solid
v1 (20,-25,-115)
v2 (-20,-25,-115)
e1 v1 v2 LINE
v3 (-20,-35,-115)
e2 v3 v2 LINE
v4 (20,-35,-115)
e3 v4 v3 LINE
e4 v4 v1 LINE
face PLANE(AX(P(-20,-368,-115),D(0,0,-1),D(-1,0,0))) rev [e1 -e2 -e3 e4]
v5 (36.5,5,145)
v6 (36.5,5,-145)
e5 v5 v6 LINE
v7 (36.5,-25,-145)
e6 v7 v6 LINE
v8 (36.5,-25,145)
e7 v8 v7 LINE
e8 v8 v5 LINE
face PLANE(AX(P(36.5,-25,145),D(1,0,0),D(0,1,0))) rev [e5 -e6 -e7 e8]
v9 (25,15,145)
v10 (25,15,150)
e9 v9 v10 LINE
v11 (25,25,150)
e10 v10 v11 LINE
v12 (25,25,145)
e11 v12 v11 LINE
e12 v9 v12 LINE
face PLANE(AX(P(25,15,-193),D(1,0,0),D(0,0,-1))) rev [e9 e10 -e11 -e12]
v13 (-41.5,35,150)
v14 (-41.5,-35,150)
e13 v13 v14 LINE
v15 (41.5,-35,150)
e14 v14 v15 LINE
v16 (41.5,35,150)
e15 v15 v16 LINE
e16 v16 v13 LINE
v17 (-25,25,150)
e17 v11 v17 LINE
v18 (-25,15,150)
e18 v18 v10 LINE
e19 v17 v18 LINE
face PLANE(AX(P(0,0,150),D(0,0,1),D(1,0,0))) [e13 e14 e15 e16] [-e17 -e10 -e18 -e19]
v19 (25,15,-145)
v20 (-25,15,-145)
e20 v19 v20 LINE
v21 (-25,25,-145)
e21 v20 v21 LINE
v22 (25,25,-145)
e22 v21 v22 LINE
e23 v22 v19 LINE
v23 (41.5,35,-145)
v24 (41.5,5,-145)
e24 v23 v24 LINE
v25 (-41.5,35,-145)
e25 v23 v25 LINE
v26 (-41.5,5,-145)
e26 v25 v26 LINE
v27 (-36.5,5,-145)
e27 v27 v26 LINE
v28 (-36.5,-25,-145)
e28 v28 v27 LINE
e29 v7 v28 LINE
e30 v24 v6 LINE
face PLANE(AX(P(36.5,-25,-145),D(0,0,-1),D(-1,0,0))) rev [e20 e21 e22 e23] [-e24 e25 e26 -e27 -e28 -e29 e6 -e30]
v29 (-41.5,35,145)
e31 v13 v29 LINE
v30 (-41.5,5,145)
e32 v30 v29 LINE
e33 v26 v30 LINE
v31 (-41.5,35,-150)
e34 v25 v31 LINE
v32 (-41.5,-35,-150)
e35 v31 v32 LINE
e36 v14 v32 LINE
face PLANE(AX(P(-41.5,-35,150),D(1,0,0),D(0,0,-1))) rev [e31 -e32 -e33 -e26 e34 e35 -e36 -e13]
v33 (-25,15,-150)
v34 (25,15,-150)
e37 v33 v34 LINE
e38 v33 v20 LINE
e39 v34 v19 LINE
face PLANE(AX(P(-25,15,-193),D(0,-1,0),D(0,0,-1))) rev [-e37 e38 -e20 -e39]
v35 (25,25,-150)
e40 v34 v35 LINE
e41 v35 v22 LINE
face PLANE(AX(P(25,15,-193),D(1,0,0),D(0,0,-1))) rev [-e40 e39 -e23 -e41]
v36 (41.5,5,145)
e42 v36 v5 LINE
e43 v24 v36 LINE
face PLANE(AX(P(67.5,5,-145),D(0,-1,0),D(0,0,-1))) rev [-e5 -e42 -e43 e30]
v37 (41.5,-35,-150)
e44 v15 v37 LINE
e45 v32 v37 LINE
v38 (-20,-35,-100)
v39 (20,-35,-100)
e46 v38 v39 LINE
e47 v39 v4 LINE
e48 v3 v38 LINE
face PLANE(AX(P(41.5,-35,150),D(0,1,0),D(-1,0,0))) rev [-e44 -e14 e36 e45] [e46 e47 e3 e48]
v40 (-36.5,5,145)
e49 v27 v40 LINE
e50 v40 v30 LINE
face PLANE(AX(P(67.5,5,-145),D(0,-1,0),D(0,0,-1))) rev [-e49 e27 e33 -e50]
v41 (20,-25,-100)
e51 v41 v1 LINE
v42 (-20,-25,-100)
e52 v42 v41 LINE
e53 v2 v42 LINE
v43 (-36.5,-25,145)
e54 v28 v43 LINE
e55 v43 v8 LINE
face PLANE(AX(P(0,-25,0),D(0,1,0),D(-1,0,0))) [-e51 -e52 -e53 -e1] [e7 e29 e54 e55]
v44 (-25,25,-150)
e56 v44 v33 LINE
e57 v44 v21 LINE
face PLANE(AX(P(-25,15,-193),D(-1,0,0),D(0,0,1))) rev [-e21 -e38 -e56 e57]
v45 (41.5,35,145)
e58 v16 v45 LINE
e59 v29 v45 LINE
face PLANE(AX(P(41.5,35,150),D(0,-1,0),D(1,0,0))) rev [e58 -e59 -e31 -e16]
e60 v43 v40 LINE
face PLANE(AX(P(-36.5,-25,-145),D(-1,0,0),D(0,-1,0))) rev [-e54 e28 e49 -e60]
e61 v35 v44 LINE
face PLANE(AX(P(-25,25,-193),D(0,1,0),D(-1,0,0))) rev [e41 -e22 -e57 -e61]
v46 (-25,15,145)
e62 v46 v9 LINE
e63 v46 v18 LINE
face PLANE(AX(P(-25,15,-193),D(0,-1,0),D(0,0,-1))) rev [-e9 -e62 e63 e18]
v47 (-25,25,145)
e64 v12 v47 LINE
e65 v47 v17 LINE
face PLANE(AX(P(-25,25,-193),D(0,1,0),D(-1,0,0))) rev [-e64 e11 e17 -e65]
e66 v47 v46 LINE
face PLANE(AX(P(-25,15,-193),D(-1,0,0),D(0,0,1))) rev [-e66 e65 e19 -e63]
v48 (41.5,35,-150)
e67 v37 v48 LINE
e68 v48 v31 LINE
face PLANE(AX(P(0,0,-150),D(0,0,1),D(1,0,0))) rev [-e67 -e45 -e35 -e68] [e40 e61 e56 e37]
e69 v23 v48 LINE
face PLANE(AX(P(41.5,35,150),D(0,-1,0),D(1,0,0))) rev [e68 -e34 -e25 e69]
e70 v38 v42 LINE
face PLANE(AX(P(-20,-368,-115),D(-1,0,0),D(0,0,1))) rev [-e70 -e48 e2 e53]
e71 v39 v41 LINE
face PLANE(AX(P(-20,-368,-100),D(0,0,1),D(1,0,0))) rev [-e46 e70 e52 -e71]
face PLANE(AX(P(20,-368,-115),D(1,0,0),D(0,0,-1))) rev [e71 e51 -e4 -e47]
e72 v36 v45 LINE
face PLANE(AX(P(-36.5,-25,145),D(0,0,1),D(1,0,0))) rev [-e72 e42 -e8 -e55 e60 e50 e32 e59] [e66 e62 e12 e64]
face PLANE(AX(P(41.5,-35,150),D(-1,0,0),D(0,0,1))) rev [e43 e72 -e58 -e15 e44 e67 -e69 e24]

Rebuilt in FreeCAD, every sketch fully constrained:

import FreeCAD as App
import Part
import Sketcher

V = App.Vector


def add_polygon(sketch, points):
    """Adds a closed chain of lines whose ends are joined by coincident constraints."""
    first, n = sketch.GeometryCount, len(points)
    for a, b in zip(points, points[1:] + points[:1]):
        sketch.addGeometry(Part.LineSegment(App.Vector(*a, 0), App.Vector(*b, 0)), False)
    for i in range(n):
        sketch.addConstraint(Sketcher.Constraint("Coincident", first + i, 2, first + (i + 1) % n, 1))

doc = App.newDocument("Part")
body = doc.addObject("PartDesign::Body", "Body")

# Sketch on XY plane
sketch1 = doc.addObject("Sketcher::SketchObject", "Sketch")
body.addObject(sketch1)
sketch1.AttachmentSupport = (doc.XY_Plane, [""])
sketch1.MapMode = "FlatFace"
add_polygon(sketch1, [(-42, 35), (-42, -35), (42, -35), (42, 35)])  # lines 0-3
sketch1.addConstraint(Sketcher.Constraint("Vertical", 0))
sketch1.addConstraint(Sketcher.Constraint("Horizontal", 1))
sketch1.addConstraint(Sketcher.Constraint("Vertical", 2))
sketch1.addConstraint(Sketcher.Constraint("Horizontal", 3))
sketch1.addConstraint(Sketcher.Constraint("Symmetric", 0, 2, 2, 2, -1, 1))
sketch1.addConstraint(Sketcher.Constraint("DistanceX", 1, 1, 1, 2, 83.0))
sketch1.addConstraint(Sketcher.Constraint("DistanceY", 0, 2, 0, 1, 70.0))
pad1 = doc.addObject("PartDesign::Pad", "Pad")
body.addObject(pad1)
pad1.Profile = sketch1
pad1.Length = 300
pad1.Midplane = True

# Sketch on XZ plane
sketch2 = doc.addObject("Sketcher::SketchObject", "Sketch001")
body.addObject(sketch2)
sketch2.AttachmentSupport = (doc.XZ_Plane, [""])
sketch2.MapMode = "FlatFace"
sketch2.AttachmentOffset = App.Placement(V(0, 0, -35), App.Rotation())
add_polygon(sketch2, [(-36, -145), (-36, 145), (36, 145), (36, -145)])  # lines 0-3
sketch2.addConstraint(Sketcher.Constraint("Vertical", 0))
sketch2.addConstraint(Sketcher.Constraint("Horizontal", 1))
sketch2.addConstraint(Sketcher.Constraint("Vertical", 2))
sketch2.addConstraint(Sketcher.Constraint("Horizontal", 3))
sketch2.addConstraint(Sketcher.Constraint("Symmetric", 0, 2, 2, 2, -1, 1))
sketch2.addConstraint(Sketcher.Constraint("DistanceX", 1, 1, 1, 2, 73.0))
sketch2.addConstraint(Sketcher.Constraint("DistanceY", 0, 1, 0, 2, 290.0))
pocket1 = doc.addObject("PartDesign::Pocket", "Pocket")
body.addObject(pocket1)
pocket1.Profile = sketch2
pocket1.Length = 60
pocket1.Reversed = True

# Sketch on YZ plane
sketch3 = doc.addObject("Sketcher::SketchObject", "Sketch002")
body.addObject(sketch3)
sketch3.AttachmentSupport = (doc.YZ_Plane, [""])
sketch3.MapMode = "FlatFace"
sketch3.AttachmentOffset = App.Placement(V(0, 0, -41.5), App.Rotation())
add_polygon(sketch3, [(35, -145), (5, -145), (5, 145), (35, 145)])  # lines 0-3
sketch3.addConstraint(Sketcher.Constraint("Horizontal", 0))
sketch3.addConstraint(Sketcher.Constraint("Vertical", 1))
sketch3.addConstraint(Sketcher.Constraint("Horizontal", 2))
sketch3.addConstraint(Sketcher.Constraint("Vertical", 3))
sketch3.addConstraint(Sketcher.Constraint("DistanceX", 0, 2, 0, 1, 30.0))
sketch3.addConstraint(Sketcher.Constraint("DistanceY", 1, 1, 1, 2, 290.0))
sketch3.addConstraint(Sketcher.Constraint("DistanceX", -1, 1, 0, 2, 5.0))
sketch3.addConstraint(Sketcher.Constraint("DistanceY", 0, 2, -1, 1, 145.0))
pocket2 = doc.addObject("PartDesign::Pocket", "Pocket001")
body.addObject(pocket2)
pocket2.Profile = sketch3
pocket2.Length = 109
pocket2.Reversed = True

# Sketch on XY plane
sketch4 = doc.addObject("Sketcher::SketchObject", "Sketch003")
body.addObject(sketch4)
sketch4.AttachmentSupport = (doc.XY_Plane, [""])
sketch4.MapMode = "FlatFace"
sketch4.AttachmentOffset = App.Placement(V(0, 0, 150), App.Rotation())
add_polygon(sketch4, [(-25, 25), (-25, 15), (25, 15), (25, 25)])  # lines 0-3
sketch4.addConstraint(Sketcher.Constraint("Vertical", 0))
sketch4.addConstraint(Sketcher.Constraint("Horizontal", 1))
sketch4.addConstraint(Sketcher.Constraint("Vertical", 2))
sketch4.addConstraint(Sketcher.Constraint("Horizontal", 3))
sketch4.addConstraint(Sketcher.Constraint("DistanceX", 1, 1, 1, 2, 50.0))
sketch4.addConstraint(Sketcher.Constraint("DistanceY", 0, 2, 0, 1, 10.0))
sketch4.addConstraint(Sketcher.Constraint("DistanceX", 0, 2, -1, 1, 25.0))
sketch4.addConstraint(Sketcher.Constraint("DistanceY", -1, 1, 0, 2, 15.0))
pocket3 = doc.addObject("PartDesign::Pocket", "Pocket002")
body.addObject(pocket3)
pocket3.Profile = sketch4
pocket3.Length = 343

# Sketch on XZ plane
sketch5 = doc.addObject("Sketcher::SketchObject", "Sketch004")
body.addObject(sketch5)
sketch5.AttachmentSupport = (doc.XZ_Plane, [""])
sketch5.MapMode = "FlatFace"
sketch5.AttachmentOffset = App.Placement(V(0, 0, 25), App.Rotation())
add_polygon(sketch5, [(-20, -115), (-20, -100), (20, -100), (20, -115)])  # lines 0-3
sketch5.addConstraint(Sketcher.Constraint("Vertical", 0))
sketch5.addConstraint(Sketcher.Constraint("Horizontal", 1))
sketch5.addConstraint(Sketcher.Constraint("Vertical", 2))
sketch5.addConstraint(Sketcher.Constraint("Horizontal", 3))
sketch5.addConstraint(Sketcher.Constraint("DistanceX", 1, 1, 1, 2, 40.0))
sketch5.addConstraint(Sketcher.Constraint("DistanceY", 0, 1, 0, 2, 15.0))
sketch5.addConstraint(Sketcher.Constraint("DistanceX", 0, 2, -1, 1, 20.0))
sketch5.addConstraint(Sketcher.Constraint("DistanceY", 0, 2, -1, 1, 100.0))
pocket4 = doc.addObject("PartDesign::Pocket", "Pocket003")
body.addObject(pocket4)
pocket4.Profile = sketch5
pocket4.Length = 343
pocket4.Reversed = True

doc.recompute()
